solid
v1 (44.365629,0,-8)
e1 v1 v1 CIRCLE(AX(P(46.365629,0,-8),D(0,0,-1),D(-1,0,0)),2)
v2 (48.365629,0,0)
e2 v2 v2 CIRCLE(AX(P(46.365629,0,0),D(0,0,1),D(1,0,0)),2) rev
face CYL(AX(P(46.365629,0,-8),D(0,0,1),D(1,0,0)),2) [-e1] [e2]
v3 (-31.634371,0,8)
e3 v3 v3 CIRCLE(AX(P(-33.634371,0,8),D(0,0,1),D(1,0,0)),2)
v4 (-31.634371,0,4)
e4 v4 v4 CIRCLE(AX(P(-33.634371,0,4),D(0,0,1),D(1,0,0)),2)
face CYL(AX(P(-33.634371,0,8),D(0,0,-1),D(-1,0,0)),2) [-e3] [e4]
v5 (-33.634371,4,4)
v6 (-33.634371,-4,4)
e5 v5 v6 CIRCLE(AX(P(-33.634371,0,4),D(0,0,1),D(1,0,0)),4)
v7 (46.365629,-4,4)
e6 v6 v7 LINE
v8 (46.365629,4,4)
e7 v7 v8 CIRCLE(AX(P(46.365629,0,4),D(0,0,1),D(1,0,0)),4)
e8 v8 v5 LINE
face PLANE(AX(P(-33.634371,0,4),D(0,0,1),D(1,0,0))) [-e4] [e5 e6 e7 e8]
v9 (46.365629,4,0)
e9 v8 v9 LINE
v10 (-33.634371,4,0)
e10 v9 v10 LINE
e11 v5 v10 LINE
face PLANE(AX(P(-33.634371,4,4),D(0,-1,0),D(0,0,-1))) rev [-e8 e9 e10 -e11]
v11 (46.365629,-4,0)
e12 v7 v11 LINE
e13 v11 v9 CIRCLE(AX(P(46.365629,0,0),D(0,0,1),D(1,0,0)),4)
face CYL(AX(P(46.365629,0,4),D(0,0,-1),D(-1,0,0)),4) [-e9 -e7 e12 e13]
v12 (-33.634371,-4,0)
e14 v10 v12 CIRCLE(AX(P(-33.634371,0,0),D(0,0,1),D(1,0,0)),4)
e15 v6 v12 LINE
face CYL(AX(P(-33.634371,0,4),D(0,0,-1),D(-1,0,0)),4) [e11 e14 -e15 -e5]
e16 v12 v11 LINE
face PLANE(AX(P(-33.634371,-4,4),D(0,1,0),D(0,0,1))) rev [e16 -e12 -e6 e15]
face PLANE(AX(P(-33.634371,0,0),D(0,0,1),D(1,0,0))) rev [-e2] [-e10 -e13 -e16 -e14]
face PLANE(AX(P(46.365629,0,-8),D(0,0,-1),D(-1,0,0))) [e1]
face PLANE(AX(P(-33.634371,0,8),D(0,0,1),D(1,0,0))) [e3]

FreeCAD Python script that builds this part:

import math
import FreeCAD as App
import Part
import Sketcher

V = App.Vector

doc = App.newDocument("Part")
body = doc.addObject("PartDesign::Body", "Body")

# Sketch on XY plane
sketch1 = doc.addObject("Sketcher::SketchObject", "Sketch")
body.addObject(sketch1)
sketch1.AttachmentSupport = (doc.XY_Plane, [""])
sketch1.MapMode = "FlatFace"
sketch1.addGeometry([
    Part.LineSegment(V(-33.6, -4, 0), V(46.4, -4, 0)),
    Part.ArcOfCircle(Part.Circle(V(46.4, 0, 0), V(0, 0, 1), 4), math.radians(-90), math.radians(90)),
    Part.LineSegment(V(46.4, 4, 0), V(-33.6, 4, 0)),
    Part.ArcOfCircle(Part.Circle(V(-33.6, 0, 0), V(0, 0, 1), 4), math.radians(90), math.radians(270)),
], False)
sketch1.addConstraint([
    Sketcher.Constraint("Tangent", 0, 2, 1, 1),
    Sketcher.Constraint("Tangent", 1, 2, 2, 1),
    Sketcher.Constraint("Tangent", 2, 2, 3, 1),
    Sketcher.Constraint("Tangent", 3, 2, 0, 1),
    Sketcher.Constraint("Horizontal", 0),
    Sketcher.Constraint("Horizontal", 2),
    Sketcher.Constraint("PointOnObject", 1, 3, -1),
    Sketcher.Constraint("Radius", 1, 4.0),
    Sketcher.Constraint("DistanceX", 0, 1, 0, 2, 80.0),
    Sketcher.Constraint("DistanceX", -1, 1, 1, 3, 46.365629),
])
pad1 = doc.addObject("PartDesign::Pad", "Pad")
body.addObject(pad1)
pad1.Profile = sketch1
pad1.Length = 4

# Sketch on XY plane
sketch2 = doc.addObject("Sketcher::SketchObject", "Sketch001")
body.addObject(sketch2)
sketch2.AttachmentSupport = (doc.XY_Plane, [""])
sketch2.MapMode = "FlatFace"
sketch2.addGeometry(Part.Circle(V(46.4, 0, 0), V(0, 0, 1), 2), False)
sketch2.addConstraint([
    Sketcher.Constraint("PointOnObject", 0, 3, -1),
    Sketcher.Constraint("Diameter", 0, 4.0),
    Sketcher.Constraint("DistanceX", -1, 1, 0, 3, 46.365629),
])
pad2 = doc.addObject("PartDesign::Pad", "Pad001")
body.addObject(pad2)
pad2.Profile = sketch2
pad2.Length = 8
pad2.Reversed = True

# Sketch on XY plane
sketch3 = doc.addObject("Sketcher::SketchObject", "Sketch002")
body.addObject(sketch3)
sketch3.AttachmentSupport = (doc.XY_Plane, [""])
sketch3.MapMode = "FlatFace"
sketch3.AttachmentOffset = App.Placement(V(0, 0, 4), App.Rotation())
sketch3.addGeometry(Part.Circle(V(-33.6, 0, 0), V(0, 0, 1), 2), False)
sketch3.addConstraint([
    Sketcher.Constraint("PointOnObject", 0, 3, -1),
    Sketcher.Constraint("Diameter", 0, 4.0),
    Sketcher.Constraint("DistanceX", 0, 3, -1, 1, 33.634371),
])
pad3 = doc.addObject("PartDesign::Pad", "Pad002")
body.addObject(pad3)
pad3.Profile = sketch3
pad3.Length = 4

doc.recompute()
